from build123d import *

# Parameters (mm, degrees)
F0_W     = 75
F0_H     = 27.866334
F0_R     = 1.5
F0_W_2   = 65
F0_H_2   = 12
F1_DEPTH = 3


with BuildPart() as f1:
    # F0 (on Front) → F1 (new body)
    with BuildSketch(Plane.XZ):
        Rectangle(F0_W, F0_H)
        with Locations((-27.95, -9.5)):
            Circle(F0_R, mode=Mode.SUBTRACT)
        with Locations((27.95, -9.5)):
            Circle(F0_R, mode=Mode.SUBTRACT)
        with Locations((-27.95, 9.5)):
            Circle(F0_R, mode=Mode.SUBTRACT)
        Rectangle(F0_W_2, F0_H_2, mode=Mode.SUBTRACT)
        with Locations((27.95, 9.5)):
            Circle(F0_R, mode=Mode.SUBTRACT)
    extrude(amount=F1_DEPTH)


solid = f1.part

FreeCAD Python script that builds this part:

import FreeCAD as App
import Part
import Sketcher
from FreeCAD import Vector
Q = App.Units.Quantity

doc = App.newDocument("Part")
body = doc.addObject("PartDesign::Body", "Body")

sketch1 = body.newObject("Sketcher::SketchObject", "Sketch")
sketch1.AttachmentSupport = (doc.getObject("XZ_Plane"), [""])
sketch1.MapMode = "FlatFace"
sketch1.addGeometry(Part.LineSegment(Vector(-37.5, 13.9, 0), Vector(-37.5, -13.9, 0)), False)
sketch1.addGeometry(Part.LineSegment(Vector(-37.5, -13.9, 0), Vector(37.5, -13.9, 0)), False)
sketch1.addGeometry(Part.LineSegment(Vector(37.5, -13.9, 0), Vector(37.5, 13.9, 0)), False)
sketch1.addGeometry(Part.LineSegment(Vector(37.5, 13.9, 0), Vector(-37.5, 13.9, 0)), False)
sketch1.addGeometry(Part.Circle(Vector(-27.9, -9.5, 0), Vector(0, 0, 1), 1.5), False)
sketch1.addGeometry(Part.Circle(Vector(27.9, -9.5, 0), Vector(0, 0, 1), 1.5), False)
sketch1.addGeometry(Part.Circle(Vector(-27.9, 9.5, 0), Vector(0, 0, 1), 1.5), False)
sketch1.addGeometry(Part.LineSegment(Vector(32.5, -6, 0), Vector(-32.5, -6, 0)), False)
sketch1.addGeometry(Part.LineSegment(Vector(-32.5, -6, 0), Vector(-32.5, 6, 0)), False)
sketch1.addGeometry(Part.LineSegment(Vector(-32.5, 6, 0), Vector(32.5, 6, 0)), False)
sketch1.addGeometry(Part.LineSegment(Vector(32.5, 6, 0), Vector(32.5, -6, 0)), False)
sketch1.addGeometry(Part.Circle(Vector(27.9, 9.5, 0), Vector(0, 0, 1), 1.5), False)
sketch1.addConstraint(Sketcher.Constraint("Coincident", 0, 2, 1, 1))
sketch1.addConstraint(Sketcher.Constraint("Coincident", 1, 2, 2, 1))
sketch1.addConstraint(Sketcher.Constraint("Coincident", 2, 2, 3, 1))
sketch1.addConstraint(Sketcher.Constraint("Coincident", 3, 2, 0, 1))
sketch1.addConstraint(Sketcher.Constraint("Coincident", 7, 2, 8, 1))
sketch1.addConstraint(Sketcher.Constraint("Coincident", 8, 2, 9, 1))
sketch1.addConstraint(Sketcher.Constraint("Coincident", 9, 2, 10, 1))
sketch1.addConstraint(Sketcher.Constraint("Coincident", 10, 2, 7, 1))
sketch1.addConstraint(Sketcher.Constraint("Vertical", 0))
sketch1.addConstraint(Sketcher.Constraint("Horizontal", 1))
sketch1.addConstraint(Sketcher.Constraint("Vertical", 2))
sketch1.addConstraint(Sketcher.Constraint("Horizontal", 3))
sketch1.addConstraint(Sketcher.Constraint("Horizontal", 7))
sketch1.addConstraint(Sketcher.Constraint("Vertical", 8))
sketch1.addConstraint(Sketcher.Constraint("Horizontal", 9))
sketch1.addConstraint(Sketcher.Constraint("Vertical", 10))
sketch1.addConstraint(Sketcher.Constraint("Equal", 4, 5))
sketch1.addConstraint(Sketcher.Constraint("Equal", 5, 6))
sketch1.addConstraint(Sketcher.Constraint("Equal", 6, 11))
sketch1.addConstraint(Sketcher.Constraint("Symmetric", 5, 3, 6, 3, -1, 1))
sketch1.addConstraint(Sketcher.Constraint("Symmetric", 4, 3, 11, 3, -1, 1))
sketch1.addConstraint(Sketcher.Constraint("Symmetric", 0, 2, 2, 2, -1, 1))
sketch1.addConstraint(Sketcher.Constraint("Symmetric", 7, 2, 9, 2, -1, 1))
sketch1.addConstraint(Sketcher.Constraint("Symmetric", 4, 3, 5, 3, -2))
sketch1.addConstraint(Sketcher.Constraint("Diameter", 4, Q("3 mm")))
sketch1.addConstraint(Sketcher.Constraint("DistanceX", 1, 1, 1, 2, Q("75 mm")))
sketch1.addConstraint(Sketcher.Constraint("DistanceX", 7, 2, 7, 1, Q("65 mm")))
sketch1.addConstraint(Sketcher.Constraint("DistanceY", 8, 1, 8, 2, Q("12 mm")))
sketch1.addConstraint(Sketcher.Constraint("DistanceY", 4, 3, 6, 3, Q("19 mm")))
sketch1.addConstraint(Sketcher.Constraint("DistanceX", 4, 3, 5, 3, Q("55.9 mm")))
sketch1.addConstraint(Sketcher.Constraint("DistanceY", 0, 2, 0, 1, Q("27.866334 mm")))
pad1 = body.newObject("PartDesign::Pad", "Pad")
pad1.Profile = sketch1
pad1.Length = 3

doc.recompute()
